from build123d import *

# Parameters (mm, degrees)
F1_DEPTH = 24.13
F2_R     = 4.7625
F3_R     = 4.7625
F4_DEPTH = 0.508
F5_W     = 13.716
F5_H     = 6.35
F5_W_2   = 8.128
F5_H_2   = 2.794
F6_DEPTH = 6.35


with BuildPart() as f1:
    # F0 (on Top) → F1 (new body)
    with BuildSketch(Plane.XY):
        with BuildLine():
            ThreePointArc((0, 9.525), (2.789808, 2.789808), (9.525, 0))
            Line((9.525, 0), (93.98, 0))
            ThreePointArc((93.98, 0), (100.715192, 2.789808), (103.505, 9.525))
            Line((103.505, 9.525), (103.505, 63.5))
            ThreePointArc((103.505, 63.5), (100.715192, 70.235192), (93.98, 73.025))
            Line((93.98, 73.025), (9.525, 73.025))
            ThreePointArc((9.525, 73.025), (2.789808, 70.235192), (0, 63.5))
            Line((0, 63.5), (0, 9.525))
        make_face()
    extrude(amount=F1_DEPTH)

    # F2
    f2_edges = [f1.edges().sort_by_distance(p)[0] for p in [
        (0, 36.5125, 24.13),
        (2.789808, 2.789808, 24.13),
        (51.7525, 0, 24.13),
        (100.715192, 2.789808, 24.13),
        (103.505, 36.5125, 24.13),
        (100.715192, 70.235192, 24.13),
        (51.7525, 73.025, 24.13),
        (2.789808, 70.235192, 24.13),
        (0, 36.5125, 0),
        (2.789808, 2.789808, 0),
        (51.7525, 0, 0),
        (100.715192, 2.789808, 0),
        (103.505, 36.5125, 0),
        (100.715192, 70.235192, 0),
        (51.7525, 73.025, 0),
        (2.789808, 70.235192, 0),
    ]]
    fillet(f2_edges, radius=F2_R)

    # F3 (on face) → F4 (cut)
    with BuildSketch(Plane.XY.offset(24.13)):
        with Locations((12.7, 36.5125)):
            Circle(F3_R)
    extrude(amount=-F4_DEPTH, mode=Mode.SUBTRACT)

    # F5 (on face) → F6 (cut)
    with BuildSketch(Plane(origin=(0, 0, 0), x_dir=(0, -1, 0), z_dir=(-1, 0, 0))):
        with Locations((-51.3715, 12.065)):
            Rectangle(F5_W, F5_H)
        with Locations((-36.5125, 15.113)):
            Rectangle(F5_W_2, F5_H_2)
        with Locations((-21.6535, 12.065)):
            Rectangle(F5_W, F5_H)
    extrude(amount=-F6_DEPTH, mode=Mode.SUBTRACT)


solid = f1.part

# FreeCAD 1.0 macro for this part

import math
import FreeCAD as App
import Part
import Sketcher

V = App.Vector
Q = App.Units.Quantity


def edges_at(feature, points):
    """Names of the edges that pass closest to the given points."""
    edges = feature.Shape.Edges
    near = lambda p: min(range(len(edges)), key=lambda i: edges[i].distToShape(Part.Vertex(*p))[0])
    return sorted({f"Edge{near(p) + 1}" for p in points})


def add_polygon(sketch, points):
    """Adds a closed chain of lines whose ends are joined by coincident constraints."""
    first, n = sketch.GeometryCount, len(points)
    for a, b in zip(points, points[1:] + points[:1]):
        sketch.addGeometry(Part.LineSegment(App.Vector(*a, 0), App.Vector(*b, 0)), False)
    for i in range(n):
        sketch.addConstraint(Sketcher.Constraint("Coincident", first + i, 2, first + (i + 1) % n, 1))

doc = App.newDocument("Part")
body = doc.addObject("PartDesign::Body", "Body")

sketch1 = doc.addObject("Sketcher::SketchObject", "Sketch")
body.addObject(sketch1)
sketch1.AttachmentSupport = (doc.XY_Plane, [""])
sketch1.MapMode = "FlatFace"
sketch1.addGeometry(Part.ArcOfCircle(Part.Circle(V(9.525, 9.525, 0), V(0, 0, 1), 9.525), math.radians(-179.999998), math.radians(-90.000002)), False)
sketch1.addGeometry(Part.LineSegment(V(9.525, 0, 0), V(93.98, 0, 0)), False)
sketch1.addGeometry(Part.ArcOfCircle(Part.Circle(V(93.98, 9.525, 0), V(0, 0, 1), 9.525), math.radians(-89.999998), math.radians(-0.000002)), False)
sketch1.addGeometry(Part.LineSegment(V(103.505, 9.525, 0), V(103.505, 63.5, 0)), False)
sketch1.addGeometry(Part.ArcOfCircle(Part.Circle(V(93.98, 63.5, 0), V(0, 0, 1), 9.525), math.radians(0.000002), math.radians(89.999998)), False)
sketch1.addGeometry(Part.LineSegment(V(93.98, 73.025, 0), V(9.525, 73.025, 0)), False)
sketch1.addGeometry(Part.ArcOfCircle(Part.Circle(V(9.525, 63.5, 0), V(0, 0, 1), 9.525), math.radians(90.000002), math.radians(179.999998)), False)
sketch1.addGeometry(Part.LineSegment(V(0, 63.5, 0), V(0, 9.525, 0)), False)
sketch1.addConstraint(Sketcher.Constraint("Tangent", 0, 2, 1, 1))
sketch1.addConstraint(Sketcher.Constraint("Tangent", 1, 2, 2, 1))
sketch1.addConstraint(Sketcher.Constraint("Tangent", 2, 2, 3, 1))
sketch1.addConstraint(Sketcher.Constraint("Tangent", 3, 2, 4, 1))
sketch1.addConstraint(Sketcher.Constraint("Tangent", 4, 2, 5, 1))
sketch1.addConstraint(Sketcher.Constraint("Tangent", 5, 2, 6, 1))
sketch1.addConstraint(Sketcher.Constraint("Tangent", 6, 2, 7, 1))
sketch1.addConstraint(Sketcher.Constraint("Tangent", 7, 2, 0, 1))
sketch1.addConstraint(Sketcher.Constraint("Horizontal", 1))
sketch1.addConstraint(Sketcher.Constraint("Vertical", 3))
sketch1.addConstraint(Sketcher.Constraint("Horizontal", 5))
sketch1.addConstraint(Sketcher.Constraint("Vertical", 7))
sketch1.addConstraint(Sketcher.Constraint("Equal", 0, 2))
sketch1.addConstraint(Sketcher.Constraint("Equal", 2, 4))
sketch1.addConstraint(Sketcher.Constraint("Equal", 4, 6))
sketch1.addConstraint(Sketcher.Constraint("PointOnObject", 0, 2, -1))
sketch1.addConstraint(Sketcher.Constraint("PointOnObject", 6, 2, -2))
sketch1.addConstraint(Sketcher.Constraint("Radius", 0, Q("0.375 in")))
sketch1.addConstraint(Sketcher.Constraint("DistanceX", -1, 1, 2, 3, Q("3.7 in")))
sketch1.addConstraint(Sketcher.Constraint("DistanceY", -1, 1, 4, 3, Q("2.5 in")))
pad1 = doc.addObject("PartDesign::Pad", "Pad")
body.addObject(pad1)
pad1.Profile = sketch1
pad1.Length = Q("0.95 in")
doc.recompute()

fillet = doc.addObject("PartDesign::Fillet", "Fillet")
body.addObject(fillet)
fillet.Base = (pad1, edges_at(pad1, [
    (0, 36.513, 24.13),
    (2.79, 2.79, 24.13),
    (51.752, 0, 24.13),
    (100.715, 2.79, 24.13),
    (103.505, 36.513, 24.13),
    (100.715, 70.235, 24.13),
    (51.752, 73.025, 24.13),
    (2.79, 70.235, 24.13),
    (0, 36.513, 0),
    (2.79, 2.79, 0),
    (51.752, 0, 0),
    (100.715, 2.79, 0),
    (103.505, 36.513, 0),
    (100.715, 70.235, 0),
    (51.752, 73.025, 0),
    (2.79, 70.235, 0),
]))
fillet.Radius = Q("0.1875 in")

sketch2 = doc.addObject("Sketcher::SketchObject", "Sketch001")
body.addObject(sketch2)
sketch2.AttachmentSupport = (doc.XY_Plane, [""])
sketch2.MapMode = "FlatFace"
sketch2.AttachmentOffset = App.Placement(V(0, 0, 0.95 * 25.4), App.Rotation())
sketch2.addGeometry(Part.Circle(V(12.7, 36.5125, 0), V(0, 0, 1), 4.7625), False)
sketch2.addConstraint(Sketcher.Constraint("Diameter", 0, Q("0.375 in")))
sketch2.addConstraint(Sketcher.Constraint("DistanceX", -1, 1, 0, 3, Q("0.5 in")))
sketch2.addConstraint(Sketcher.Constraint("DistanceY", -1, 1, 0, 3, Q("1.4375 in")))
pocket1 = doc.addObject("PartDesign::Pocket", "Pocket")
body.addObject(pocket1)
pocket1.Profile = sketch2
pocket1.Length = Q("0.02 in")

sketch3 = doc.addObject("Sketcher::SketchObject", "Sketch002")
body.addObject(sketch3)
sketch3.AttachmentSupport = (doc.YZ_Plane, [""])
sketch3.MapMode = "FlatFace"
add_polygon(sketch3, [(58.2295, 15.24), (58.2295, 8.89), (44.5135, 8.89), (44.5135, 15.24)])
add_polygon(sketch3, [(40.5765, 16.51), (40.5765, 13.716), (32.4485, 13.716), (32.4485, 16.51)])
add_polygon(sketch3, [(28.5115, 15.24), (28.5115, 8.89), (14.7955, 8.89), (14.7955, 15.24)])
sketch3.addConstraint(Sketcher.Constraint("Vertical", 0))
sketch3.addConstraint(Sketcher.Constraint("Horizontal", 1))
sketch3.addConstraint(Sketcher.Constraint("Vertical", 2))
sketch3.addConstraint(Sketcher.Constraint("Horizontal", 3))
sketch3.addConstraint(Sketcher.Constraint("Vertical", 4))
sketch3.addConstraint(Sketcher.Constraint("Horizontal", 5))
sketch3.addConstraint(Sketcher.Constraint("Vertical", 6))
sketch3.addConstraint(Sketcher.Constraint("Horizontal", 7))
sketch3.addConstraint(Sketcher.Constraint("Vertical", 8))
sketch3.addConstraint(Sketcher.Constraint("Horizontal", 9))
sketch3.addConstraint(Sketcher.Constraint("Vertical", 10))
sketch3.addConstraint(Sketcher.Constraint("Horizontal", 11))
sketch3.addConstraint(Sketcher.Constraint("Horizontal", 1, 2, 8, 2))
sketch3.addConstraint(Sketcher.Constraint("Horizontal", 3, 2, 10, 2))
sketch3.addConstraint(Sketcher.Constraint("Equal", 3, 9))
sketch3.addConstraint(Sketcher.Constraint("DistanceX", 1, 2, 1, 1, Q("0.54 in")))
sketch3.addConstraint(Sketcher.Constraint("DistanceX", 5, 2, 5, 1, Q("0.32 in")))
sketch3.addConstraint(Sketcher.Constraint("DistanceY", 0, 2, 0, 1, Q("0.25 in")))
sketch3.addConstraint(Sketcher.Constraint("DistanceY", 4, 2, 4, 1, Q("0.11 in")))
sketch3.addConstraint(Sketcher.Constraint("DistanceY", -1, 1, 2, 2, Q("0.6 in")))
sketch3.addConstraint(Sketcher.Constraint("DistanceY", 1, 2, 6, 2, Q("0.3 in")))
sketch3.addConstraint(Sketcher.Constraint("DistanceX", 8, 2, 1, 2, Q("0.63 in")))
sketch3.addConstraint(Sketcher.Constraint("DistanceX", 4, 2, 2, 2, Q("0.155 in")))
sketch3.addConstraint(Sketcher.Constraint("DistanceX", -1, 1, 0, 2, Q("2.2925 in")))
pocket2 = doc.addObject("PartDesign::Pocket", "Pocket001")
body.addObject(pocket2)
pocket2.Profile = sketch3
pocket2.Length = Q("0.25 in")
pocket2.Reversed = True

doc.recompute()
